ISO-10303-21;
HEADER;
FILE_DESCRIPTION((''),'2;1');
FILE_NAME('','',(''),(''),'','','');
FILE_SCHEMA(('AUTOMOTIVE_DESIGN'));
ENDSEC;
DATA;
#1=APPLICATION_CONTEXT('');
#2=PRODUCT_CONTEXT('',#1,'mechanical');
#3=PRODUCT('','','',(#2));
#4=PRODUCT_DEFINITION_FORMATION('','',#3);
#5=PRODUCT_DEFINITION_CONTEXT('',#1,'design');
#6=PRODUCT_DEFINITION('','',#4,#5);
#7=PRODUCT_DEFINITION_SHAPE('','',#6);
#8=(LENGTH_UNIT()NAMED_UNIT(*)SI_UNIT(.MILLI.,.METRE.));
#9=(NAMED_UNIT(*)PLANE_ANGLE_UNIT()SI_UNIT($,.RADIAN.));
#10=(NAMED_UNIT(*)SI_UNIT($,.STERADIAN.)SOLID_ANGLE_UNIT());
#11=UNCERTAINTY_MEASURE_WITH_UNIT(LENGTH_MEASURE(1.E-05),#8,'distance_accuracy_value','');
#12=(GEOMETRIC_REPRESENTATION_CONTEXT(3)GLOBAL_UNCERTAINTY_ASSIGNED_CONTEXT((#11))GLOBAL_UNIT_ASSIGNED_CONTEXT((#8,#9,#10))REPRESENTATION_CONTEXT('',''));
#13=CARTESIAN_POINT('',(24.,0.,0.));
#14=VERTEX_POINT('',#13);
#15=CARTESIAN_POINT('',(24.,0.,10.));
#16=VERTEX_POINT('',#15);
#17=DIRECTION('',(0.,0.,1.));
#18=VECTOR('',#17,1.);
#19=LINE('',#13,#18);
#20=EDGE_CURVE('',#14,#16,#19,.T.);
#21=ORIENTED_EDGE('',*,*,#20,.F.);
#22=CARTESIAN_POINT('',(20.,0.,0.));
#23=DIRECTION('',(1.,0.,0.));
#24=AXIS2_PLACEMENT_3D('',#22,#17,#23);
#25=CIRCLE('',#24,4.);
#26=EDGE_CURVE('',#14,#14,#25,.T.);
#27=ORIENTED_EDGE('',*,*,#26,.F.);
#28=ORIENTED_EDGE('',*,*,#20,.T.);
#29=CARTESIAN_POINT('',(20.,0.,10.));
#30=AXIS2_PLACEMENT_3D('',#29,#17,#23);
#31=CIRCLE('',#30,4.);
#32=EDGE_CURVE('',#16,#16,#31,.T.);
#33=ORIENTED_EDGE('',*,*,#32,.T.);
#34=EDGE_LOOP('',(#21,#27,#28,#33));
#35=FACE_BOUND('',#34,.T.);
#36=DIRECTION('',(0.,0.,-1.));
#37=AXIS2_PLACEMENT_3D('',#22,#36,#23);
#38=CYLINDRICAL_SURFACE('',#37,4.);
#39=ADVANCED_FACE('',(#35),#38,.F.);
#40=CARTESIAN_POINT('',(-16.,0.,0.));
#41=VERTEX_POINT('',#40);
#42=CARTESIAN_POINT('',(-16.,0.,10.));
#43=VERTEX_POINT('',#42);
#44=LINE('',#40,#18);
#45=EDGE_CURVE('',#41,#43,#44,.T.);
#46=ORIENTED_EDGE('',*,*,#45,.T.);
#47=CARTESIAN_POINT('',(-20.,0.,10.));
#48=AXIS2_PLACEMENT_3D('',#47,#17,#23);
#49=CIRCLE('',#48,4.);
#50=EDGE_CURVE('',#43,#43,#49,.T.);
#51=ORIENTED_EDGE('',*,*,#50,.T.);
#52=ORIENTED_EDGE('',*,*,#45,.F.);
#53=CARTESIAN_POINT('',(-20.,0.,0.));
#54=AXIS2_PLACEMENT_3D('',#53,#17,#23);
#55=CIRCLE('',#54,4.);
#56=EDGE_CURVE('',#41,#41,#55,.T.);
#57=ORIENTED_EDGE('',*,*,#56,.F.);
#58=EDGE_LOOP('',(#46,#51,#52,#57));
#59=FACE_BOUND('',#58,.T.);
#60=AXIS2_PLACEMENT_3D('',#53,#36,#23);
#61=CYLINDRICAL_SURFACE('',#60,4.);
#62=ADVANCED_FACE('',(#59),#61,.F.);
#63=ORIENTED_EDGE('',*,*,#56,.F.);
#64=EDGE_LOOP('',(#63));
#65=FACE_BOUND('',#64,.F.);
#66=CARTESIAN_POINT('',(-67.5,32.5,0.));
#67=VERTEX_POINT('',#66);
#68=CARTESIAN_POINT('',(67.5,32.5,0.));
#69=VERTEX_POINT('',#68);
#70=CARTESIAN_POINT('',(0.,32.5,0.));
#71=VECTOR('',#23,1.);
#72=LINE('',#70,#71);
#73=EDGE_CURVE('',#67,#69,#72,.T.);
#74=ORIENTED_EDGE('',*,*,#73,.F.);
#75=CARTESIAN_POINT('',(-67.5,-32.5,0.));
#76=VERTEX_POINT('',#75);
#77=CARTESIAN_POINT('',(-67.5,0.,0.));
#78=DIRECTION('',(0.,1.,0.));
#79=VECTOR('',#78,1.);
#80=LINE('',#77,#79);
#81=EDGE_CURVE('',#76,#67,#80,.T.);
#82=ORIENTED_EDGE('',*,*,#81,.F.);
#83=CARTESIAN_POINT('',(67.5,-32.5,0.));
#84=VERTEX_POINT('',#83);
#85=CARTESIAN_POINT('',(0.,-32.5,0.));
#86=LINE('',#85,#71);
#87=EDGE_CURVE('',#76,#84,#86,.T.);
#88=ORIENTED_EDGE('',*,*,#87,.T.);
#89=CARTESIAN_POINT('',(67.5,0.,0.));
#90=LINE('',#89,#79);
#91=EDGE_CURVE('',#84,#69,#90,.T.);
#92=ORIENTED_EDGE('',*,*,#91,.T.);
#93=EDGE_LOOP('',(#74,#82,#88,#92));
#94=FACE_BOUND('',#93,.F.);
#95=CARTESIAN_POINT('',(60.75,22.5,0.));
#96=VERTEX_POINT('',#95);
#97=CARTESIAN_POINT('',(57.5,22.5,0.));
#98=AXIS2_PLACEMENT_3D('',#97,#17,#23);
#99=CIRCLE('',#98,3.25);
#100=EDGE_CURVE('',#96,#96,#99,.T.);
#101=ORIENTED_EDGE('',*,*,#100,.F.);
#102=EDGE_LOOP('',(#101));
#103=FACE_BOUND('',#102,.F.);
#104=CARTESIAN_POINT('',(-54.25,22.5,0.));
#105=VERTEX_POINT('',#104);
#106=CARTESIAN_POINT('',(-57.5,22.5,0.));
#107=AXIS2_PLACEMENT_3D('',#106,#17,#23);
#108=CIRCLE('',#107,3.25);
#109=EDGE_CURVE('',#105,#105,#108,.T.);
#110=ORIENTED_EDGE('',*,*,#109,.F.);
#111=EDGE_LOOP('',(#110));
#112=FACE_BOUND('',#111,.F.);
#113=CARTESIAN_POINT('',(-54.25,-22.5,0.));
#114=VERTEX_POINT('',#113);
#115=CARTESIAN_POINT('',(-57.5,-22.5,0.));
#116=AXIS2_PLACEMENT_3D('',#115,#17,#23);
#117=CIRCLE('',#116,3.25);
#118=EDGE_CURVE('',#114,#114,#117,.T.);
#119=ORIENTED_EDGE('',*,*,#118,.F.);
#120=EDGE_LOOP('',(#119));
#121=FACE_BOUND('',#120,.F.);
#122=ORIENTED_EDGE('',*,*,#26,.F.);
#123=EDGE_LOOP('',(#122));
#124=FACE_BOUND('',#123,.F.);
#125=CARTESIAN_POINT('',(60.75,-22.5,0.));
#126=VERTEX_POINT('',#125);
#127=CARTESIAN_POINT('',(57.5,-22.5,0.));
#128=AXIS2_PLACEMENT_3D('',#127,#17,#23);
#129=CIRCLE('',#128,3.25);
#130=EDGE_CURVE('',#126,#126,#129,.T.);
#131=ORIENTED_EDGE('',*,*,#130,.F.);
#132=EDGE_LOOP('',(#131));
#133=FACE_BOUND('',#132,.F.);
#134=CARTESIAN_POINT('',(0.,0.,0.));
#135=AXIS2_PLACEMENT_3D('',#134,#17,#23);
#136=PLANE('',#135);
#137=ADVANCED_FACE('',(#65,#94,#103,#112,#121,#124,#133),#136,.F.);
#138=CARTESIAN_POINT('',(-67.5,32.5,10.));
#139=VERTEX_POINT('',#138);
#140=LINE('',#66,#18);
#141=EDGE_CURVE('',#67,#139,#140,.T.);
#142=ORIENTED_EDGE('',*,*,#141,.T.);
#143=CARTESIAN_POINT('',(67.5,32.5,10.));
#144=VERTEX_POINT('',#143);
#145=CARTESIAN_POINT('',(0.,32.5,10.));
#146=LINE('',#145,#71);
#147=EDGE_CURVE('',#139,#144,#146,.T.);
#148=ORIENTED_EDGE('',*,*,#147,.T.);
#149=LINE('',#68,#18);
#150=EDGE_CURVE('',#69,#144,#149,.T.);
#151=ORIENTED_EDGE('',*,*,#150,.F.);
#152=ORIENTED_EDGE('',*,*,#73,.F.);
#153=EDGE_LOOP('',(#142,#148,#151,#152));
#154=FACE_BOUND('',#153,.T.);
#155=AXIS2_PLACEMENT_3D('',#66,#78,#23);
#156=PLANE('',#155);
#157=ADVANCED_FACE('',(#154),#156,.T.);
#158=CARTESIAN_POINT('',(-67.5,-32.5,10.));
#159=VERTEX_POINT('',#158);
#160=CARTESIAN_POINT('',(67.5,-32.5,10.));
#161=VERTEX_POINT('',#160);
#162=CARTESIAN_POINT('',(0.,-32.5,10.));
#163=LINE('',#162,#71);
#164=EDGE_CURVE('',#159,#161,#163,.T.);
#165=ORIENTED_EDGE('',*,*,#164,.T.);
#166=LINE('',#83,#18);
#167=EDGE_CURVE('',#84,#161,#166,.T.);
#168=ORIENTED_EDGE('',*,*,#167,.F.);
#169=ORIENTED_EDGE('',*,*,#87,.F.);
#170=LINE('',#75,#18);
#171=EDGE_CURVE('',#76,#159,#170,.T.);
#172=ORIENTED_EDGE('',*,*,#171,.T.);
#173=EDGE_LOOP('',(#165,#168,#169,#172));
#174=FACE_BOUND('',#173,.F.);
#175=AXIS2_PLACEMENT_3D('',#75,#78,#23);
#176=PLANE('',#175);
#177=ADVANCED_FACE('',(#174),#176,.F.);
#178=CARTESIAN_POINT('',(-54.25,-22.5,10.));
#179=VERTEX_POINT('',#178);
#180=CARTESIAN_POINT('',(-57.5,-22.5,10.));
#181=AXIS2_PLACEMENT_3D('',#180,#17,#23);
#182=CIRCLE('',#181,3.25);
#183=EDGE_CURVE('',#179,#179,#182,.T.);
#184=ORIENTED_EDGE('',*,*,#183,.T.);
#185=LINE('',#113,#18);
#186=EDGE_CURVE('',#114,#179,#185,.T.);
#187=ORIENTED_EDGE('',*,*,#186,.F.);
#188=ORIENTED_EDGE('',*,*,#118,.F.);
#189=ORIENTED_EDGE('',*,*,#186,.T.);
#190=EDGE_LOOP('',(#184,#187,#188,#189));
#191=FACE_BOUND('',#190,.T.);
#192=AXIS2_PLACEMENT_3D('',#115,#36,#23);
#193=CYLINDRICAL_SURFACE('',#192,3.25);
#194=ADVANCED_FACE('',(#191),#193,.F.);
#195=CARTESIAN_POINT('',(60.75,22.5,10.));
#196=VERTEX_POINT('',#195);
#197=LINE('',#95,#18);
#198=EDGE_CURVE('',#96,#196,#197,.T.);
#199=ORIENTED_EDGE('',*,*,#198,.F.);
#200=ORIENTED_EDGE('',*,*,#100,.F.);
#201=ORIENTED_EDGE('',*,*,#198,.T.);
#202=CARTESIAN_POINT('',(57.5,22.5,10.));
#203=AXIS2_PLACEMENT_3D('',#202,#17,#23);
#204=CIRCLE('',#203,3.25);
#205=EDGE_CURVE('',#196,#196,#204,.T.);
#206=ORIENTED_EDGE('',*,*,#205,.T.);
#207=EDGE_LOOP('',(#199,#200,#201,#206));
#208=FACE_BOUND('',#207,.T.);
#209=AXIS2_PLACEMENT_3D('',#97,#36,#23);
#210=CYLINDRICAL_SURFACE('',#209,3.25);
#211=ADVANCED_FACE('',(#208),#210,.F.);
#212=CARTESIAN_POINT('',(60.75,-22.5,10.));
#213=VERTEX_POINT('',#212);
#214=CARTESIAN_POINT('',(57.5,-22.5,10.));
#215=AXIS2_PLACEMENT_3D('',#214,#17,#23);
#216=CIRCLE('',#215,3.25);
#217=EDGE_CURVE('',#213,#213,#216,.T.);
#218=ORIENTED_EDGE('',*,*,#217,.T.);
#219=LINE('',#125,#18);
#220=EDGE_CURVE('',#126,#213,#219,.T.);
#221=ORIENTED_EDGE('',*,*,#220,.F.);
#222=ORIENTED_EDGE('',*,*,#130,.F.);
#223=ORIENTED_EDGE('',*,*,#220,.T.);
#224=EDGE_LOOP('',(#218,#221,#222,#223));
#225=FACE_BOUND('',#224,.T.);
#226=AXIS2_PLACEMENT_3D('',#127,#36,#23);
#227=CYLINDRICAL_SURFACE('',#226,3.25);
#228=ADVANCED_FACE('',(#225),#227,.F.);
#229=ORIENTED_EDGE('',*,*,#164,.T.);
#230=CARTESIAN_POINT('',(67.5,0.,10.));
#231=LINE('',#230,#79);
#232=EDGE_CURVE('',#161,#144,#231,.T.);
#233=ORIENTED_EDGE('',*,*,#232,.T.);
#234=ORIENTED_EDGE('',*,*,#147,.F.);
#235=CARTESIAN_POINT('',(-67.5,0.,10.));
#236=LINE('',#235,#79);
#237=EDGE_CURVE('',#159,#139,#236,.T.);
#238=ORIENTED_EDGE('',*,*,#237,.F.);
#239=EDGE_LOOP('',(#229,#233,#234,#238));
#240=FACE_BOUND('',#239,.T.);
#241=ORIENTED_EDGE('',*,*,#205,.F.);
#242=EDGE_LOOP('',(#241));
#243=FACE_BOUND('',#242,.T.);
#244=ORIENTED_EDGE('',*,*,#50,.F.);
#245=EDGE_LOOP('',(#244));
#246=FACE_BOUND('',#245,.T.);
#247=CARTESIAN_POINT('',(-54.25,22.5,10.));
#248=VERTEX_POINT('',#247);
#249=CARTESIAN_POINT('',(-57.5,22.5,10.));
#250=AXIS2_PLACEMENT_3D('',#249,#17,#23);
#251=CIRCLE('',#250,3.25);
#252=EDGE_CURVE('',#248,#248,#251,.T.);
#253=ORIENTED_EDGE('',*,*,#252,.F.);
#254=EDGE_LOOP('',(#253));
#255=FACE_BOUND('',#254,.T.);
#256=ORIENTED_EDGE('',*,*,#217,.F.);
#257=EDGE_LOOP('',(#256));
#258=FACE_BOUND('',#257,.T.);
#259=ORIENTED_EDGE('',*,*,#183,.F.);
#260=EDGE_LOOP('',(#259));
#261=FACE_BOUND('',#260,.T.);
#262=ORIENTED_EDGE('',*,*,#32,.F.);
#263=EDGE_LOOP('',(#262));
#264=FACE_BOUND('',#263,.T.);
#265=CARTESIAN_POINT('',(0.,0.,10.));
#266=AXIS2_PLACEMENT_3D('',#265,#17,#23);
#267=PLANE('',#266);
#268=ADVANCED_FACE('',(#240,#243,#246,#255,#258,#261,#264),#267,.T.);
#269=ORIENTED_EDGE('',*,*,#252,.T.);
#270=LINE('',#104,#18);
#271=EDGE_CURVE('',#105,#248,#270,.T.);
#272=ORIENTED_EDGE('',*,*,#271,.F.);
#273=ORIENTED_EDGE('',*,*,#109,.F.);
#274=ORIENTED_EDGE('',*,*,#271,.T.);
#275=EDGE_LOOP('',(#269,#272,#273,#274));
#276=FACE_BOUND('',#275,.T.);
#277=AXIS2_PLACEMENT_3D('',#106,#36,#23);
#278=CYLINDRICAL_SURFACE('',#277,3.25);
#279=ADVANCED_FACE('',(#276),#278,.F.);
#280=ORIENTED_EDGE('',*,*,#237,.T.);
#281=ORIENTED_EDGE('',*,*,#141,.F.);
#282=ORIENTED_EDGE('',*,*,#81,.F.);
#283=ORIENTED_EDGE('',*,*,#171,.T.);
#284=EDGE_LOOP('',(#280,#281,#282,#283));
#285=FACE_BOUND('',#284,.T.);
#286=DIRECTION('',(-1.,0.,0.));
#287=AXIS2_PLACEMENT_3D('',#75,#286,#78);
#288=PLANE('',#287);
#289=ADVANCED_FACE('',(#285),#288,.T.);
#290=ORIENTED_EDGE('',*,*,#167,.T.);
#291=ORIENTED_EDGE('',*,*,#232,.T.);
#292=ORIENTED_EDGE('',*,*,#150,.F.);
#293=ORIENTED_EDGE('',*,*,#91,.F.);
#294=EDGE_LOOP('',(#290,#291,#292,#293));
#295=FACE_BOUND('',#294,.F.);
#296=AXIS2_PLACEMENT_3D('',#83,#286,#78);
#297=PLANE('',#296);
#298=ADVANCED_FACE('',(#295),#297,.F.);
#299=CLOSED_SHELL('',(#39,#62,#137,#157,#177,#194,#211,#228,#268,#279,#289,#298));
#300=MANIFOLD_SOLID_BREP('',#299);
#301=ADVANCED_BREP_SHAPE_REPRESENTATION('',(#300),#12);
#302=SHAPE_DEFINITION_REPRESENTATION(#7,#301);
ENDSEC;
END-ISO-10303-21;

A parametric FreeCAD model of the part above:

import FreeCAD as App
import Part
import Sketcher
from FreeCAD import Vector
Q = App.Units.Quantity


def add_polygon(sketch, points):
    """Adds a closed chain of lines whose ends are joined by coincident constraints."""
    first, n = sketch.GeometryCount, len(points)
    for a, b in zip(points, points[1:] + points[:1]):
        sketch.addGeometry(Part.LineSegment(App.Vector(*a, 0), App.Vector(*b, 0)), False)
    for i in range(n):
        sketch.addConstraint(Sketcher.Constraint("Coincident", first + i, 2, first + (i + 1) % n, 1))

doc = App.newDocument("Part")
body = doc.addObject("PartDesign::Body", "Body")

sketch1 = doc.addObject("Sketcher::SketchObject", "Sketch")
body.addObject(sketch1)
sketch1.AttachmentSupport = (doc.XY_Plane, [""])
sketch1.MapMode = "FlatFace"
add_polygon(sketch1, [(-67.5, 32.5), (-67.5, -32.5), (67.5, -32.5), (67.5, 32.5)])
sketch1.addGeometry(Part.Circle(Vector(-57.5, -22.5, 0), Vector(0, 0, 1), 3.25), False)
sketch1.addGeometry(Part.Circle(Vector(-20, 0, 0), Vector(0, 0, 1), 4), False)
sketch1.addGeometry(Part.Circle(Vector(57.5, -22.5, 0), Vector(0, 0, 1), 3.25), False)
sketch1.addGeometry(Part.Circle(Vector(20, 0, 0), Vector(0, 0, 1), 4), False)
sketch1.addGeometry(Part.Circle(Vector(-57.5, 22.5, 0), Vector(0, 0, 1), 3.25), False)
sketch1.addGeometry(Part.Circle(Vector(57.5, 22.5, 0), Vector(0, 0, 1), 3.25), False)
sketch1.addConstraint(Sketcher.Constraint("Vertical", 0))
sketch1.addConstraint(Sketcher.Constraint("Horizontal", 1))
sketch1.addConstraint(Sketcher.Constraint("Vertical", 2))
sketch1.addConstraint(Sketcher.Constraint("Horizontal", 3))
sketch1.addConstraint(Sketcher.Constraint("Equal", 4, 6))
sketch1.addConstraint(Sketcher.Constraint("Equal", 5, 7))
sketch1.addConstraint(Sketcher.Constraint("Equal", 6, 8))
sketch1.addConstraint(Sketcher.Constraint("Equal", 8, 9))
sketch1.addConstraint(Sketcher.Constraint("Symmetric", 5, 3, 7, 3, -1, 1))
sketch1.addConstraint(Sketcher.Constraint("Symmetric", 6, 3, 8, 3, -1, 1))
sketch1.addConstraint(Sketcher.Constraint("Symmetric", 4, 3, 9, 3, -1, 1))
sketch1.addConstraint(Sketcher.Constraint("Symmetric", 0, 2, 2, 2, -1, 1))
sketch1.addConstraint(Sketcher.Constraint("Symmetric", 4, 3, 6, 3, -2))
sketch1.addConstraint(Sketcher.Constraint("PointOnObject", 5, 3, -1))
sketch1.addConstraint(Sketcher.Constraint("Diameter", 5, Q("8 mm")))
sketch1.addConstraint(Sketcher.Constraint("Diameter", 4, Q("6.5 mm")))
sketch1.addConstraint(Sketcher.Constraint("DistanceX", 1, 1, 1, 2, Q("135 mm")))
sketch1.addConstraint(Sketcher.Constraint("DistanceY", 0, 2, 0, 1, Q("65 mm")))
sketch1.addConstraint(Sketcher.Constraint("DistanceX", 5, 3, -1, 1, Q("20 mm")))
sketch1.addConstraint(Sketcher.Constraint("DistanceX", 4, 3, 6, 3, Q("115 mm")))
sketch1.addConstraint(Sketcher.Constraint("DistanceY", 4, 3, 8, 3, Q("45 mm")))
pad1 = doc.addObject("PartDesign::Pad", "Pad")
body.addObject(pad1)
pad1.Profile = sketch1
pad1.Length = 10

doc.recompute()
